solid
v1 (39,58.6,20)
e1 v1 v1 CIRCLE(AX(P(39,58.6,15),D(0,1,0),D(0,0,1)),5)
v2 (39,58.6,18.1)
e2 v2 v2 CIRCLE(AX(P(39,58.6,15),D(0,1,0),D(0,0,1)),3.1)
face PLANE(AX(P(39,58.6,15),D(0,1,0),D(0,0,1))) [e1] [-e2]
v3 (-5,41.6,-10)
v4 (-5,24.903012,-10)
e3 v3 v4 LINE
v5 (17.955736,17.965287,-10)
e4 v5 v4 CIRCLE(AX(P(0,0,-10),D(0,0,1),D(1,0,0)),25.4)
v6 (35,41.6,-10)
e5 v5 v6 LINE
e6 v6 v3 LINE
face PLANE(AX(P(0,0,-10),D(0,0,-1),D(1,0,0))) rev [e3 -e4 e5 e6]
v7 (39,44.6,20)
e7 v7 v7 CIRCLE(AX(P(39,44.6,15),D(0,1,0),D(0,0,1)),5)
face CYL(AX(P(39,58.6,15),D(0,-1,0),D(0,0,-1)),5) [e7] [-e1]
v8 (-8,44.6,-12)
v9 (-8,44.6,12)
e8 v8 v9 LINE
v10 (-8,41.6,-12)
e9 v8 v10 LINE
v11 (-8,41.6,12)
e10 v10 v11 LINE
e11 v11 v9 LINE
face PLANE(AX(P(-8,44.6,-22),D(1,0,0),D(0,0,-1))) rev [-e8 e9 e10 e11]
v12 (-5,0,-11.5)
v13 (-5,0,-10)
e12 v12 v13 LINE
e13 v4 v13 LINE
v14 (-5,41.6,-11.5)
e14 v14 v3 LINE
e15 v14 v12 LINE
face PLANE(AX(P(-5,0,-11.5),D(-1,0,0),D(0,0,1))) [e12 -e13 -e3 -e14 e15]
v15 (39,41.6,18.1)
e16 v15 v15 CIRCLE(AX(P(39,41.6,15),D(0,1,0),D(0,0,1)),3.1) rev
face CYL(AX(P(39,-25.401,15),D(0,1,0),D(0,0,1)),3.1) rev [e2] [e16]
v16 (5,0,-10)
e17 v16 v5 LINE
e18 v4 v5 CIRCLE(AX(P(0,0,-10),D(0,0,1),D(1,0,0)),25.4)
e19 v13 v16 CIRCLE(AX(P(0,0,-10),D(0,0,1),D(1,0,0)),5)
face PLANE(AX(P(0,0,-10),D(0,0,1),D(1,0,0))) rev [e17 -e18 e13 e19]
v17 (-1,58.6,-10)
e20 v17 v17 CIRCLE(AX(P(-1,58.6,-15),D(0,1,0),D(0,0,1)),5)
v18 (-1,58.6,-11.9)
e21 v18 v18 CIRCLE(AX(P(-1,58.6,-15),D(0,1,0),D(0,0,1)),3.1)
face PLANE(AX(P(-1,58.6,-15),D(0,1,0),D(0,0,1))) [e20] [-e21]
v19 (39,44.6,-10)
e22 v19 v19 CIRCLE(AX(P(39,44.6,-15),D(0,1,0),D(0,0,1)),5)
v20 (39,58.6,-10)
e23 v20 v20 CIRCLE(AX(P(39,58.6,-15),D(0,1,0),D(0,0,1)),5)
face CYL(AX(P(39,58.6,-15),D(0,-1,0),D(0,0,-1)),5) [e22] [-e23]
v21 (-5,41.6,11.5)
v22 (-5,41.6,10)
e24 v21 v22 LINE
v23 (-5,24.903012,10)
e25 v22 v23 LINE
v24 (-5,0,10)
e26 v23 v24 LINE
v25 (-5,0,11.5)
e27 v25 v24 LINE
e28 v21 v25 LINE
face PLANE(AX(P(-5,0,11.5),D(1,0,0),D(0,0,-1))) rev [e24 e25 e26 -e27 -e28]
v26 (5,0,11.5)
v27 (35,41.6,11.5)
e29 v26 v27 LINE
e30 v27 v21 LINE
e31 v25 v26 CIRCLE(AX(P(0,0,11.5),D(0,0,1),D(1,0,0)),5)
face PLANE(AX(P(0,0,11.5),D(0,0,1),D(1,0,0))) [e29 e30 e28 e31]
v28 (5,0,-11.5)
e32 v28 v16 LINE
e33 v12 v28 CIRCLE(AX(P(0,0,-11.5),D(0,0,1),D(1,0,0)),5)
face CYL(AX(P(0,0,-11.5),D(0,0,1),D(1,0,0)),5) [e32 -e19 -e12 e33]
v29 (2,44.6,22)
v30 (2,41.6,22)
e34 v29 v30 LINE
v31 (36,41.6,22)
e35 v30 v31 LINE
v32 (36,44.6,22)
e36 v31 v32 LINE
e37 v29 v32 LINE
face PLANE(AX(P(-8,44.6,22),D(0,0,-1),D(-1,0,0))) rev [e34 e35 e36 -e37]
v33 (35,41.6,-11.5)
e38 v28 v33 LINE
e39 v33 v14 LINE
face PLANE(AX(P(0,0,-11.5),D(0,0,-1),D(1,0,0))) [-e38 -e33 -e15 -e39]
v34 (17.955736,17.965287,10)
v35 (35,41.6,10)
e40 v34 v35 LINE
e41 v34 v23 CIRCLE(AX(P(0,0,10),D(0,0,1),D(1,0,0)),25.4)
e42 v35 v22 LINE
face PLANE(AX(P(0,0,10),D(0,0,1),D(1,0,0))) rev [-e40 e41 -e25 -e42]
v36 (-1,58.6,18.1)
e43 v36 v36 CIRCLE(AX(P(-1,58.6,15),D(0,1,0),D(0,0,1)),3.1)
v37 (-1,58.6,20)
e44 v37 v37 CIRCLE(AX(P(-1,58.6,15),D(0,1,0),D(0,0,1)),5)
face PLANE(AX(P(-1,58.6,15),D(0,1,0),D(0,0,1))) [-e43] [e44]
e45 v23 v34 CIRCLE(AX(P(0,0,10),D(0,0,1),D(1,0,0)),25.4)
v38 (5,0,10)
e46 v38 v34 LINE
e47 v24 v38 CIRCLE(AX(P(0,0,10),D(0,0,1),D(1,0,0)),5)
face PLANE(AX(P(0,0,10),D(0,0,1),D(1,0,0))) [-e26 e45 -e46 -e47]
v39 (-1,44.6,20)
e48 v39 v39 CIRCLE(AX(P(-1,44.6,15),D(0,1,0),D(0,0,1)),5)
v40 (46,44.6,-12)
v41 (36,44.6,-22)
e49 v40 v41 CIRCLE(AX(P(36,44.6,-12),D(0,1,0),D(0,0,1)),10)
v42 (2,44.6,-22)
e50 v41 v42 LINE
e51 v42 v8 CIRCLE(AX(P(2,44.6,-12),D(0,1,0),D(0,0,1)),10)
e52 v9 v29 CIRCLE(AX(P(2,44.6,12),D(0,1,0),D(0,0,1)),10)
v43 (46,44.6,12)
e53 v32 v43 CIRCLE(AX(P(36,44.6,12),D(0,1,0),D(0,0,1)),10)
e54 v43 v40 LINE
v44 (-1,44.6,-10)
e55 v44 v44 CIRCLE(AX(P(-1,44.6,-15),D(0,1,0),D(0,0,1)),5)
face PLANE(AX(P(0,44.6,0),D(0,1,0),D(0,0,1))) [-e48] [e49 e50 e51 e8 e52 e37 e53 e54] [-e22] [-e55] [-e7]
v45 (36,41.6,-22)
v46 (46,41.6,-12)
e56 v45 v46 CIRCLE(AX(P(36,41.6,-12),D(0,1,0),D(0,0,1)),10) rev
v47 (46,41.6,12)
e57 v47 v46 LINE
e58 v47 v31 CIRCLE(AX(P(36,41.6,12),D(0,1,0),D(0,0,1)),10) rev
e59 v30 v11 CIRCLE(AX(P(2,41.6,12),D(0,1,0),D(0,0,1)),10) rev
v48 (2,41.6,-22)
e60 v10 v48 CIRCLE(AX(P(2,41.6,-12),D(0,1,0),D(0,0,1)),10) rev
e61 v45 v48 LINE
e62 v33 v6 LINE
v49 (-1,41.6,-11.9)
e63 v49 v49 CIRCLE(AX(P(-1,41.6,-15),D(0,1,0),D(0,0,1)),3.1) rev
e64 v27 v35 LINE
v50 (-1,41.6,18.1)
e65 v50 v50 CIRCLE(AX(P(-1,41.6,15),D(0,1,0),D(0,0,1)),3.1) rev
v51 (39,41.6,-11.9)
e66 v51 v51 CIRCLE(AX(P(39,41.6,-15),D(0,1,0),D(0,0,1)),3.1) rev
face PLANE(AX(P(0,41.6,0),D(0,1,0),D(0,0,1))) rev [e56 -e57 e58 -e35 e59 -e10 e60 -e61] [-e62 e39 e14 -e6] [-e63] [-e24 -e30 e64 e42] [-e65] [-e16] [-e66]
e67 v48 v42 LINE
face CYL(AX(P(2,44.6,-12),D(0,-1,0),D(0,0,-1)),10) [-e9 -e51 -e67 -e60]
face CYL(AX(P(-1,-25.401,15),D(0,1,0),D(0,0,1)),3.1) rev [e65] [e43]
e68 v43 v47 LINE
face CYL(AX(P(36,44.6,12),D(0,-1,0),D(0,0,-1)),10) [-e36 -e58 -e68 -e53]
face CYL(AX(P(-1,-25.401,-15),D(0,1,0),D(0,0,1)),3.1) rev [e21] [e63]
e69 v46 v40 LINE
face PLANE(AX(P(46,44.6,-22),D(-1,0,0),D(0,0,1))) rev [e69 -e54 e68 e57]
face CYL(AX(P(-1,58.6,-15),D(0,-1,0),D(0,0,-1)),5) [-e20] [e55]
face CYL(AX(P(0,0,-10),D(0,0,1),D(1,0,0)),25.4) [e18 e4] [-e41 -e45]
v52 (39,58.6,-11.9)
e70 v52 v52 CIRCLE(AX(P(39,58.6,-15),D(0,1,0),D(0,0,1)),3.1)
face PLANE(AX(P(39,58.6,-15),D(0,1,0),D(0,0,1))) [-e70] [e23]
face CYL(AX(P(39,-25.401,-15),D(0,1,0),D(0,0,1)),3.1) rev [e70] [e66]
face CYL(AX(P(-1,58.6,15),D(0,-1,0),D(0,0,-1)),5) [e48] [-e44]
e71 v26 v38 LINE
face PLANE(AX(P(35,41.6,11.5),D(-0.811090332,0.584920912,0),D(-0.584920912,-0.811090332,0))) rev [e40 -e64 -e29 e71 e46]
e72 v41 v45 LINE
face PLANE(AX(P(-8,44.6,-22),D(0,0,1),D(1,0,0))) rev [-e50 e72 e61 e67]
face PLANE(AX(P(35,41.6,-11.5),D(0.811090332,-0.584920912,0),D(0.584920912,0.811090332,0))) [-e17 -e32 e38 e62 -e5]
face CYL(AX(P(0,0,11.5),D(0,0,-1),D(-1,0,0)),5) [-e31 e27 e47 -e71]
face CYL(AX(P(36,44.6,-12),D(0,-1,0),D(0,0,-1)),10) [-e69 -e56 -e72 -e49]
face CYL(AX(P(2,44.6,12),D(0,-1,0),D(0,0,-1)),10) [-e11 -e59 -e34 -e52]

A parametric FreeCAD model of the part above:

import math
import FreeCAD as App
import Part
import Sketcher
from FreeCAD import Vector


def edges_at(feature, points):
    """Names of the edges that pass closest to the given points."""
    edges = feature.Shape.Edges
    near = lambda p: min(range(len(edges)), key=lambda i: edges[i].distToShape(Part.Vertex(*p))[0])
    return sorted({f"Edge{near(p) + 1}" for p in points})


def add_polygon(sketch, points):
    """Adds a closed chain of lines whose ends are joined by coincident constraints."""
    first, n = sketch.GeometryCount, len(points)
    for a, b in zip(points, points[1:] + points[:1]):
        sketch.addGeometry(Part.LineSegment(App.Vector(*a, 0), App.Vector(*b, 0)), False)
    for i in range(n):
        sketch.addConstraint(Sketcher.Constraint("Coincident", first + i, 2, first + (i + 1) % n, 1))

doc = App.newDocument("Part")
body = doc.addObject("PartDesign::Body", "Body")

# Sketch on XY plane
sketch1 = doc.addObject("Sketcher::SketchObject", "Sketch")
body.addObject(sketch1)
sketch1.AttachmentSupport = (doc.XY_Plane, [""])
sketch1.MapMode = "FlatFace"
sketch1.addGeometry(Part.Circle(Vector(0, 0, 0), Vector(0, 0, 1), 25), False)
sketch1.addConstraint(Sketcher.Constraint("Coincident", 0, 3, -1, 1))
sketch1.addConstraint(Sketcher.Constraint("Diameter", 0, 50.8))
pad1 = doc.addObject("PartDesign::Pad", "Pad")
body.addObject(pad1)
pad1.Profile = sketch1
pad1.Type = "TwoLengths"
pad1.Length = 10
pad1.Length2 = 10

# Sketch on XY plane
sketch2 = doc.addObject("Sketcher::SketchObject", "Sketch001")
body.addObject(sketch2)
sketch2.AttachmentSupport = (doc.XY_Plane, [""])
sketch2.MapMode = "FlatFace"
sketch2.AttachmentOffset = App.Placement(Vector(0, 0, 10), App.Rotation())
sketch2.addGeometry(Part.LineSegment(Vector(-5, 42, 0), Vector(-5, 0, 0)), False)
sketch2.addGeometry(Part.ArcOfCircle(Part.Circle(Vector(0, 0, 0), Vector(0, 0, 1), 5), math.radians(180), math.radians(360)), False)
sketch2.addGeometry(Part.LineSegment(Vector(5, 0, 0), Vector(35, 42, 0)), False)
sketch2.addGeometry(Part.LineSegment(Vector(35, 42, 0), Vector(-5, 42, 0)), False)
sketch2.addConstraint(Sketcher.Constraint("Tangent", 0, 2, 1, 1))
sketch2.addConstraint(Sketcher.Constraint("Coincident", 1, 2, 2, 1))
sketch2.addConstraint(Sketcher.Constraint("Coincident", 2, 2, 3, 1))
sketch2.addConstraint(Sketcher.Constraint("Coincident", 3, 2, 0, 1))
sketch2.addConstraint(Sketcher.Constraint("Vertical", 0))
sketch2.addConstraint(Sketcher.Constraint("Horizontal", 3))
sketch2.addConstraint(Sketcher.Constraint("Coincident", 1, 3, -1, 1))
sketch2.addConstraint(Sketcher.Constraint("PointOnObject", 1, 2, -1))
sketch2.addConstraint(Sketcher.Constraint("Radius", 1, 5.0))
sketch2.addConstraint(Sketcher.Constraint("DistanceX", 3, 2, 3, 1, 40.0))
sketch2.addConstraint(Sketcher.Constraint("DistanceY", 0, 2, 0, 1, 41.6))
pad2 = doc.addObject("PartDesign::Pad", "Pad001")
body.addObject(pad2)
pad2.Profile = sketch2
pad2.Length = 1.5
doc.recompute()

mirrored = doc.addObject("PartDesign::Mirrored", "Mirrored")
body.addObject(mirrored)
mirrored.Originals = [pad2]
mirrored.MirrorPlane = (doc.XY_Plane, [""])
body.Tip = mirrored

# Sketch on XZ plane
sketch3 = doc.addObject("Sketcher::SketchObject", "Sketch002")
body.addObject(sketch3)
sketch3.AttachmentSupport = (doc.XZ_Plane, [""])
sketch3.MapMode = "FlatFace"
sketch3.AttachmentOffset = App.Placement(Vector(0, 0, -41.6), App.Rotation())
add_polygon(sketch3, [(-8, -22), (-8, 22), (46, 22), (46, -22)])  # lines 0-3
sketch3.addConstraint(Sketcher.Constraint("Vertical", 0))
sketch3.addConstraint(Sketcher.Constraint("Horizontal", 1))
sketch3.addConstraint(Sketcher.Constraint("Vertical", 2))
sketch3.addConstraint(Sketcher.Constraint("Horizontal", 3))
sketch3.addConstraint(Sketcher.Constraint("DistanceX", 1, 1, 1, 2, 54.0))
sketch3.addConstraint(Sketcher.Constraint("DistanceY", 0, 1, 0, 2, 44.0))
sketch3.addConstraint(Sketcher.Constraint("DistanceX", 0, 2, -1, 1, 8.0))
sketch3.addConstraint(Sketcher.Constraint("DistanceY", -1, 1, 0, 2, 22.0))
pad3 = doc.addObject("PartDesign::Pad", "Pad002")
body.addObject(pad3)
pad3.Profile = sketch3
pad3.Length = 3
pad3.Reversed = True

# Sketch on XZ plane
sketch4 = doc.addObject("Sketcher::SketchObject", "Sketch003")
body.addObject(sketch4)
sketch4.AttachmentSupport = (doc.XZ_Plane, [""])
sketch4.MapMode = "FlatFace"
sketch4.AttachmentOffset = App.Placement(Vector(0, 0, -44.6), App.Rotation())
sketch4.addGeometry(Part.Circle(Vector(-1, -15, 0), Vector(0, 0, 1), 3.1), False)
sketch4.addGeometry(Part.Circle(Vector(39, -15, 0), Vector(0, 0, 1), 3.1), False)
sketch4.addGeometry(Part.Circle(Vector(39, 15, 0), Vector(0, 0, 1), 3.1), False)
sketch4.addGeometry(Part.Circle(Vector(-1, 15, 0), Vector(0, 0, 1), 3.1), False)
sketch4.addConstraint(Sketcher.Constraint("Equal", 0, 1))
sketch4.addConstraint(Sketcher.Constraint("Equal", 1, 2))
sketch4.addConstraint(Sketcher.Constraint("Equal", 2, 3))
sketch4.addConstraint(Sketcher.Constraint("Symmetric", 1, 3, 2, 3, -1))
sketch4.addConstraint(Sketcher.Constraint("Symmetric", 0, 3, 3, 3, -1))
sketch4.addConstraint(Sketcher.Constraint("Horizontal", 0, 3, 1, 3))
sketch4.addConstraint(Sketcher.Constraint("Diameter", 0, 6.2))
sketch4.addConstraint(Sketcher.Constraint("DistanceX", 0, 3, -1, 1, 1.0))
sketch4.addConstraint(Sketcher.Constraint("DistanceY", 0, 3, -1, 1, 15.0))
sketch4.addConstraint(Sketcher.Constraint("DistanceX", -1, 1, 1, 3, 39.0))
pocket1 = doc.addObject("PartDesign::Pocket", "Pocket")
body.addObject(pocket1)
pocket1.Profile = sketch4
pocket1.Length = 3
pocket1.Reversed = True
doc.recompute()

fillet = doc.addObject("PartDesign::Fillet", "Fillet")
body.addObject(fillet)
fillet.Base = (pocket1, edges_at(pocket1, [
    (-8, 43.1, -22),
    (-8, 43.1, 22),
    (46, 43.1, 22),
    (46, 43.1, -22),
]))
fillet.Radius = 10

# Sketch on XZ plane
sketch5 = doc.addObject("Sketcher::SketchObject", "Sketch004")
body.addObject(sketch5)
sketch5.AttachmentSupport = (doc.XZ_Plane, [""])
sketch5.MapMode = "FlatFace"
sketch5.AttachmentOffset = App.Placement(Vector(0, 0, -58.6), App.Rotation())
sketch5.addGeometry(Part.Circle(Vector(-1, -15, 0), Vector(0, 0, 1), 5), False)
sketch5.addGeometry(Part.Circle(Vector(-1, -15, 0), Vector(0, 0, 1), 3.1), False)
sketch5.addGeometry(Part.Circle(Vector(39, -15, 0), Vector(0, 0, 1), 5), False)
sketch5.addGeometry(Part.Circle(Vector(39, -15, 0), Vector(0, 0, 1), 3.1), False)
sketch5.addGeometry(Part.Circle(Vector(-1, 15, 0), Vector(0, 0, 1), 5), False)
sketch5.addGeometry(Part.Circle(Vector(-1, 15, 0), Vector(0, 0, 1), 3.1), False)
sketch5.addGeometry(Part.Circle(Vector(39, 15, 0), Vector(0, 0, 1), 5), False)
sketch5.addGeometry(Part.Circle(Vector(39, 15, 0), Vector(0, 0, 1), 3.1), False)
sketch5.addConstraint(Sketcher.Constraint("Coincident", 1, 3, 0, 3))
sketch5.addConstraint(Sketcher.Constraint("Coincident", 3, 3, 2, 3))
sketch5.addConstraint(Sketcher.Constraint("Coincident", 5, 3, 4, 3))
sketch5.addConstraint(Sketcher.Constraint("Coincident", 7, 3, 6, 3))
sketch5.addConstraint(Sketcher.Constraint("Equal", 0, 2))
sketch5.addConstraint(Sketcher.Constraint("Equal", 1, 3))
sketch5.addConstraint(Sketcher.Constraint("Equal", 2, 4))
sketch5.addConstraint(Sketcher.Constraint("Equal", 3, 5))
sketch5.addConstraint(Sketcher.Constraint("Equal", 4, 6))
sketch5.addConstraint(Sketcher.Constraint("Equal", 5, 7))
sketch5.addConstraint(Sketcher.Constraint("Symmetric", 0, 3, 4, 3, -1))
sketch5.addConstraint(Sketcher.Constraint("Symmetric", 2, 3, 6, 3, -1))
sketch5.addConstraint(Sketcher.Constraint("Horizontal", 1, 3, 2, 3))
sketch5.addConstraint(Sketcher.Constraint("Diameter", 0, 10.0))
sketch5.addConstraint(Sketcher.Constraint("Diameter", 1, 6.2))
sketch5.addConstraint(Sketcher.Constraint("DistanceX", 0, 3, -1, 1, 1.0))
sketch5.addConstraint(Sketcher.Constraint("DistanceY", 0, 3, -1, 1, 15.0))
sketch5.addConstraint(Sketcher.Constraint("DistanceX", -1, 1, 2, 3, 39.0))
pad4 = doc.addObject("PartDesign::Pad", "Pad003")
body.addObject(pad4)
pad4.Profile = sketch5
pad4.Length = 14

doc.recompute()
